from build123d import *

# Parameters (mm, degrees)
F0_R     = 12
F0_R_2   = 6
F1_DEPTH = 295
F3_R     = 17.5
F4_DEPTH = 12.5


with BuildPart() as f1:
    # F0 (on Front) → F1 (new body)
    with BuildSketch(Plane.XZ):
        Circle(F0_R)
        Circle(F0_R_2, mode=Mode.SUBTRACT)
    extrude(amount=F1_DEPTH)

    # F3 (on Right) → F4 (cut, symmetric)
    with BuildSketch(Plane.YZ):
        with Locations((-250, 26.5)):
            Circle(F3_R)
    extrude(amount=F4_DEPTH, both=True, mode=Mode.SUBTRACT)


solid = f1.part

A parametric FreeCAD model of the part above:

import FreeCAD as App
import Part
import Sketcher
from FreeCAD import Vector
Q = App.Units.Quantity

doc = App.newDocument("Part")
body = doc.addObject("PartDesign::Body", "Body")

# Sketch on XZ plane
sketch1 = body.newObject("Sketcher::SketchObject", "Sketch")
sketch1.AttachmentSupport = (doc.getObject("XZ_Plane"), [""])
sketch1.MapMode = "FlatFace"
sketch1.addGeometry([
    Part.Circle(Vector(0, 0, 0), Vector(0, 0, 1), 12),
    Part.Circle(Vector(0, 0, 0), Vector(0, 0, 1), 6),
], False)
sketch1.addConstraint([
    Sketcher.Constraint("Coincident", 0, 3, -1, 1),
    Sketcher.Constraint("Coincident", 1, 3, -1, 1),
    Sketcher.Constraint("Diameter", 0, Q("24 mm")),
    Sketcher.Constraint("Diameter", 1, Q("12 mm")),
])
pad1 = body.newObject("PartDesign::Pad", "Pad")
pad1.Profile = sketch1
pad1.Length = 295

# Sketch on YZ plane
sketch2 = body.newObject("Sketcher::SketchObject", "Sketch001")
sketch2.AttachmentSupport = (doc.getObject("YZ_Plane"), [""])
sketch2.MapMode = "FlatFace"
sketch2.addGeometry(Part.Circle(Vector(-250, 26.5, 0), Vector(0, 0, 1), 17.5), False)
sketch2.addConstraint([
    Sketcher.Constraint("Diameter", 0, Q("35 mm")),
    Sketcher.Constraint("DistanceX", 0, 3, -1, 1, Q("250 mm")),
    Sketcher.Constraint("DistanceY", -1, 1, 0, 3, Q("26.5 mm")),
])
pocket1 = body.newObject("PartDesign::Pocket", "Pocket")
pocket1.Profile = sketch2
pocket1.Length = 25
pocket1.Midplane = True

doc.recompute()
